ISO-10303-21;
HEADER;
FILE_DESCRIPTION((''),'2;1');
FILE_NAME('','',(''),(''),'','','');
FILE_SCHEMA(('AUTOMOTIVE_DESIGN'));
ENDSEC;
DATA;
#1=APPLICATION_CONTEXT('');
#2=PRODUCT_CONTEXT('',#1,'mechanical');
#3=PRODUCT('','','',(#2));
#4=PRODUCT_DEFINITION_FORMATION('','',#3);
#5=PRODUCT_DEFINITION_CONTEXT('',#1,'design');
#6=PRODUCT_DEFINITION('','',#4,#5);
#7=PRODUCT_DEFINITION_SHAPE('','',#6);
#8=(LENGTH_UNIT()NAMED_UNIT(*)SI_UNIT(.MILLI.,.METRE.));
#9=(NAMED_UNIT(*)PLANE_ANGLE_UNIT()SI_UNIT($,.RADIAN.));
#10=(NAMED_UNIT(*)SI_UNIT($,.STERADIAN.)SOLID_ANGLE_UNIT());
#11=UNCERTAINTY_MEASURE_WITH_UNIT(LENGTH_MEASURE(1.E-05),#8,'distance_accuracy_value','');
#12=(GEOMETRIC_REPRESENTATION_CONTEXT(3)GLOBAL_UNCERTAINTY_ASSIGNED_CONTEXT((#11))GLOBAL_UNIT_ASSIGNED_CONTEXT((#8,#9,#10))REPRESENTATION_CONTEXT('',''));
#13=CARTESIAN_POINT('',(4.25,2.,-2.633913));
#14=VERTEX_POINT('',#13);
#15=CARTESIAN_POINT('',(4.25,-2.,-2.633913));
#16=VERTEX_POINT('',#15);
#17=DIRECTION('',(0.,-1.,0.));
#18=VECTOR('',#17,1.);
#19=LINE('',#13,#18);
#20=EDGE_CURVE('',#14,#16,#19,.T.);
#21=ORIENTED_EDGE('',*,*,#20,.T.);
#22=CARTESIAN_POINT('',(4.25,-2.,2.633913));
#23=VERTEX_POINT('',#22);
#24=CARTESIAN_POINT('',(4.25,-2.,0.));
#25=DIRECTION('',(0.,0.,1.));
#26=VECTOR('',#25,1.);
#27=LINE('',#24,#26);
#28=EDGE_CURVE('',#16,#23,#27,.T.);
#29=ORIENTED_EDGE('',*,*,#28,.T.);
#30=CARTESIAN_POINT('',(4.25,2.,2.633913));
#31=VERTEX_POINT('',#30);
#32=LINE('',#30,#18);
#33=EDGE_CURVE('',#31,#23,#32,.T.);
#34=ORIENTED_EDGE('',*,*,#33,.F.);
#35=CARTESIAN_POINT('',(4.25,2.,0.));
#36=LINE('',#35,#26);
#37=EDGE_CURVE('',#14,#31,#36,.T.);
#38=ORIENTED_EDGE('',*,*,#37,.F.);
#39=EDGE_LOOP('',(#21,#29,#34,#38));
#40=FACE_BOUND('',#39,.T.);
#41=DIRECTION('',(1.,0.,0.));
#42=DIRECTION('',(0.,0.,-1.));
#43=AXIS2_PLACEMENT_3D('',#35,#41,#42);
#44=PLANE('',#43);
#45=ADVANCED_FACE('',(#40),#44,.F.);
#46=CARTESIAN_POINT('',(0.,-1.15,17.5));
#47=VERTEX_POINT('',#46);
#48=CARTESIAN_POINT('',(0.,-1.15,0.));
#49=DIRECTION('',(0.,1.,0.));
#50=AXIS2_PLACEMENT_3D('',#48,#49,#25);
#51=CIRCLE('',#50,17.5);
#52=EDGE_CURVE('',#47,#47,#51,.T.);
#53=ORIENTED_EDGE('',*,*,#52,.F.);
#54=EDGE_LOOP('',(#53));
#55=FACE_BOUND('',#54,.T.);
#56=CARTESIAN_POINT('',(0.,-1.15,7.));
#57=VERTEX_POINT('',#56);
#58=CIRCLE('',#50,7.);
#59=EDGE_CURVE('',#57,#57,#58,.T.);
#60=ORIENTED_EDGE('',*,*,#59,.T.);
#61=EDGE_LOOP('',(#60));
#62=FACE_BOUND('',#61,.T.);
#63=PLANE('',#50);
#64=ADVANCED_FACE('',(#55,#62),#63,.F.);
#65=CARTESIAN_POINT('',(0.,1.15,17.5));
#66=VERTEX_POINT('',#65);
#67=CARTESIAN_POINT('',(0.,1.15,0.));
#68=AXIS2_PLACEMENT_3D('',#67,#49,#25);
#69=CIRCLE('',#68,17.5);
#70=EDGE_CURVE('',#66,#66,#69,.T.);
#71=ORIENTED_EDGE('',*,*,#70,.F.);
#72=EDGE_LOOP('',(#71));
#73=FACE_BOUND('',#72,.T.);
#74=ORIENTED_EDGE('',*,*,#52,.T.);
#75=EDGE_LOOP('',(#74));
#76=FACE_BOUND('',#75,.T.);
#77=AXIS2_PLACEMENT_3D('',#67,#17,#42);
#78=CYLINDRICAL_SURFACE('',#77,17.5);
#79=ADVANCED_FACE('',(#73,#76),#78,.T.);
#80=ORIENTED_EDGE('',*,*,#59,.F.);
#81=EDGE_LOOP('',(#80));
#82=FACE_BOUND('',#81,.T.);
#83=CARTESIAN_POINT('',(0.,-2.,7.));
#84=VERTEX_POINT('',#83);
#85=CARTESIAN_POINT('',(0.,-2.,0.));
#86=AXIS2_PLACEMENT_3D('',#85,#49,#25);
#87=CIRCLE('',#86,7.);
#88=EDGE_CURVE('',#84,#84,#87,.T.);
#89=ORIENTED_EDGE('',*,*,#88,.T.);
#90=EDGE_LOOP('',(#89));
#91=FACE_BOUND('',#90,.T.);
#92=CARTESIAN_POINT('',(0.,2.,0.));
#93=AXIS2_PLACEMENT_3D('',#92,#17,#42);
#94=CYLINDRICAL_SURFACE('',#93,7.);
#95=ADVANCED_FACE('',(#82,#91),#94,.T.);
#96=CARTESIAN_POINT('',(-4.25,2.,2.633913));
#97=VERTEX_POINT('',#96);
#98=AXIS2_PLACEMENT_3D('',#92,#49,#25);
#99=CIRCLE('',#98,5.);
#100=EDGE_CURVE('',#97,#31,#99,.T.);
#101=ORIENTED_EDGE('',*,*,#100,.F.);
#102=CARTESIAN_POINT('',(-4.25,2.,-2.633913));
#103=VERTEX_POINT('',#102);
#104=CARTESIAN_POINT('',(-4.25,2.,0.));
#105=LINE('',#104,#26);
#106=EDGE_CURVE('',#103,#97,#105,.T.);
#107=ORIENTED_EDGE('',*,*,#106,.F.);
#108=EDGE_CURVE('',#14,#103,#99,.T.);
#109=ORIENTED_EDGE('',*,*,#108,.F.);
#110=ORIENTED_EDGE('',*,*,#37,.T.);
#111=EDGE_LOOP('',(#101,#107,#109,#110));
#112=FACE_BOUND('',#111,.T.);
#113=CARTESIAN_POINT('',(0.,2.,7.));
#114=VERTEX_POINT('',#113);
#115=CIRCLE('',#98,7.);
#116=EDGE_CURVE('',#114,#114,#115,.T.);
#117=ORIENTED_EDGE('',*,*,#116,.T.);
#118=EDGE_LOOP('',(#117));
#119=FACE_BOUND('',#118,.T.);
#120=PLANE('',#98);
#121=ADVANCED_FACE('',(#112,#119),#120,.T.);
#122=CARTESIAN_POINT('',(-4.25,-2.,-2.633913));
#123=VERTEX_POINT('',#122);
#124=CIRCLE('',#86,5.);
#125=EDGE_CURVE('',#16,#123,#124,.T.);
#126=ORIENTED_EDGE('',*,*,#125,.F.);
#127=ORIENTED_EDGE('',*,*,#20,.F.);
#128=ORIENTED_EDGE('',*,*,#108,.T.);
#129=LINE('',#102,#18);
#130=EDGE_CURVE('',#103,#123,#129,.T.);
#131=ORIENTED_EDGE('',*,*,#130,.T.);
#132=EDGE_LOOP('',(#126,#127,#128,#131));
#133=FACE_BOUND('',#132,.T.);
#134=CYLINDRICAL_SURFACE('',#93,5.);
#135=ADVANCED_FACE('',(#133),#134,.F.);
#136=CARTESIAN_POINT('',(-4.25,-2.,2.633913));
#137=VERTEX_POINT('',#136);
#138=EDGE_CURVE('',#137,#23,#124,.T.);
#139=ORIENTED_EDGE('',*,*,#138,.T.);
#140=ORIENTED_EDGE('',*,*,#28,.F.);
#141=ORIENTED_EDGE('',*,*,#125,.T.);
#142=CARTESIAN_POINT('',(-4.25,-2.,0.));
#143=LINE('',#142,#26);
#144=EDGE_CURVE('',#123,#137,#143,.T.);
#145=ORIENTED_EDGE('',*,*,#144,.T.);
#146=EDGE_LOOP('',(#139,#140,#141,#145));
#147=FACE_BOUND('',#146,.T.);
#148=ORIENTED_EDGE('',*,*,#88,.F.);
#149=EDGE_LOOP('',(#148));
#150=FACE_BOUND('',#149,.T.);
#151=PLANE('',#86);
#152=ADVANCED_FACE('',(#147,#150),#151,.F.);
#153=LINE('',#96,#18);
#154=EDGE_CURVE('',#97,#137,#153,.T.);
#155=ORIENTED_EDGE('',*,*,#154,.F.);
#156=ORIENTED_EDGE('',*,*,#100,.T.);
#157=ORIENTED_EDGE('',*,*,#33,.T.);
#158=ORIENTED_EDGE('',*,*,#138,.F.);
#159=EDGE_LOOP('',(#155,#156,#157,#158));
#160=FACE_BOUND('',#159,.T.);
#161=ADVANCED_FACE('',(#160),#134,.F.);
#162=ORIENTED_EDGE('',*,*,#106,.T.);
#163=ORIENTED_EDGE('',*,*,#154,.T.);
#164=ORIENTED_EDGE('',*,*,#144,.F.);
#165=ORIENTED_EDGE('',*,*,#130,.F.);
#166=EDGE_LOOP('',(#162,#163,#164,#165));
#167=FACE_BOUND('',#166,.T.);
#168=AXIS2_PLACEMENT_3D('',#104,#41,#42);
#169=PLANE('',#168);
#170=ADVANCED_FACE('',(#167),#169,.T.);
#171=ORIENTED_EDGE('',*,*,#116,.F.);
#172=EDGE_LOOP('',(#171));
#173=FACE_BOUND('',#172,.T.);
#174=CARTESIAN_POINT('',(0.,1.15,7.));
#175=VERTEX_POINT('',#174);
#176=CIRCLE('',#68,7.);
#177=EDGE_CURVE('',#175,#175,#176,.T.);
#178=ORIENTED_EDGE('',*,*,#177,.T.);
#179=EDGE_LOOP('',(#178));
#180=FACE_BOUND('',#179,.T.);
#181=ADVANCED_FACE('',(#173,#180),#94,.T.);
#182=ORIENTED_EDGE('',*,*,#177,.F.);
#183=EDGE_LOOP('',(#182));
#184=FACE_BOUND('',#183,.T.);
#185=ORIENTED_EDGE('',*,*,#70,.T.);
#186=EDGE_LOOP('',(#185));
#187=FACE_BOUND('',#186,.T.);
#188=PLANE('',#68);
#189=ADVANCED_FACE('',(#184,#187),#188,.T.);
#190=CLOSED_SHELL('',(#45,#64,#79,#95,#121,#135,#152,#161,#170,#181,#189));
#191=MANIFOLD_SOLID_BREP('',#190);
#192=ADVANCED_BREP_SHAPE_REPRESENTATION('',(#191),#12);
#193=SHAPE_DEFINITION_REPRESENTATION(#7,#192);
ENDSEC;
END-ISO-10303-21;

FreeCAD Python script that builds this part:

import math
import FreeCAD as App
import Part
import Sketcher
from FreeCAD import Vector
Q = App.Units.Quantity

doc = App.newDocument("Part")
body = doc.addObject("PartDesign::Body", "Body")

# Sketch on XZ plane
sketch1 = body.newObject("Sketcher::SketchObject", "Sketch")
sketch1.AttachmentSupport = (doc.getObject("XZ_Plane"), [""])
sketch1.MapMode = "FlatFace"
sketch1.addGeometry([
    Part.Circle(Vector(0, 0, 0), Vector(0, 0, 1), 7),  # 0
    Part.ArcOfCircle(Part.Circle(Vector(0, 0, 0), Vector(0, 0, 1), 5), math.radians(32), math.radians(148)),  # 1
    Part.LineSegment(Vector(-4, 3, 0), Vector(-4, -3, 0)),  # 2
    Part.ArcOfCircle(Part.Circle(Vector(0, 0, 0), Vector(0, 0, 1), 5), math.radians(-148), math.radians(-32)),  # 3
    Part.LineSegment(Vector(4, -3, 0), Vector(4, 3, 0)),  # 4
], False)
sketch1.addConstraint([
    Sketcher.Constraint("Coincident", 1, 2, 2, 1),
    Sketcher.Constraint("Coincident", 2, 2, 3, 1),
    Sketcher.Constraint("Coincident", 3, 2, 4, 1),
    Sketcher.Constraint("Coincident", 4, 2, 1, 1),
    Sketcher.Constraint("Vertical", 2),
    Sketcher.Constraint("Vertical", 4),
    Sketcher.Constraint("Coincident", 0, 3, -1, 1),
    Sketcher.Constraint("Coincident", 1, 3, -1, 1),
    Sketcher.Constraint("Coincident", 3, 3, -1, 1),
    Sketcher.Constraint("Equal", 1, 3),
    Sketcher.Constraint("Horizontal", 2, 2, 3, 2),
    Sketcher.Constraint("Diameter", 0, Q("14 mm")),
    Sketcher.Constraint("Radius", 1, Q("5 mm")),
    Sketcher.Constraint("DistanceX", 2, 2, 3, 2, Q("8.5 mm")),
])
pad1 = body.newObject("PartDesign::Pad", "Pad")
pad1.Profile = sketch1
pad1.Length = 4
pad1.Midplane = True

# Sketch on XZ plane
sketch2 = body.newObject("Sketcher::SketchObject", "Sketch001")
sketch2.AttachmentSupport = (doc.getObject("XZ_Plane"), [""])
sketch2.MapMode = "FlatFace"
sketch2.addGeometry([
    Part.Circle(Vector(0, 0, 0), Vector(0, 0, 1), 18),
    Part.Circle(Vector(0, 0, 0), Vector(0, 0, 1), 7),
], False)
sketch2.addConstraint([
    Sketcher.Constraint("Coincident", 0, 3, -1, 1),
    Sketcher.Constraint("Coincident", 1, 3, -1, 1),
    Sketcher.Constraint("Diameter", 0, Q("35 mm")),
    Sketcher.Constraint("Diameter", 1, Q("14 mm")),
])
pad2 = body.newObject("PartDesign::Pad", "Pad001")
pad2.Profile = sketch2
pad2.Length = 2.3
pad2.Midplane = True

doc.recompute()
